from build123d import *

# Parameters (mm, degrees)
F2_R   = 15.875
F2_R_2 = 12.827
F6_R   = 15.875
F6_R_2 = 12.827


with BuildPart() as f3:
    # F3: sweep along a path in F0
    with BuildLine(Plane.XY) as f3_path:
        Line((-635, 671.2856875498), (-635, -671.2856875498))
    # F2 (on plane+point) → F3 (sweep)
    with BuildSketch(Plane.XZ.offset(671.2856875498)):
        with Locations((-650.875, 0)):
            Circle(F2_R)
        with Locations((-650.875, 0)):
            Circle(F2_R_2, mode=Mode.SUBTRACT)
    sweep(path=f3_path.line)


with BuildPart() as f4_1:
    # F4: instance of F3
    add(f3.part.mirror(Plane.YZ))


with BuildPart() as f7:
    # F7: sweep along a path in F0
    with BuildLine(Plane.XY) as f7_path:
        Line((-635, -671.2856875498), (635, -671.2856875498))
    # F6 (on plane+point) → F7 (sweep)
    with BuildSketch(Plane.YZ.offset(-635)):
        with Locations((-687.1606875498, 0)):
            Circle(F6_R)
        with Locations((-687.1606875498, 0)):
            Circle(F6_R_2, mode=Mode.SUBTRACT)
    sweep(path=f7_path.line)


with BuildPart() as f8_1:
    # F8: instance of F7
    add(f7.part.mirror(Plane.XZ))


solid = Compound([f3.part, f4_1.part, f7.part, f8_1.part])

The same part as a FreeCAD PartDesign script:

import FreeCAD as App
import Part
import Sketcher
Q = App.Units.Quantity

doc = App.newDocument("Part")
body = doc.addObject("PartDesign::Body", "Body")

# Sketch on XZ plane
sketch1 = body.newObject("Sketcher::SketchObject", "Sketch")
sketch1.AttachmentSupport = (doc.getObject("XZ_Plane"), [""])
sketch1.MapMode = "FlatFace"
sketch1.AttachmentOffset = App.Placement(App.Vector(0, 0, 671.285688), App.Rotation())
sketch1.addGeometry(Part.Circle(App.Vector(-650.875, 0, 0), App.Vector(0, 0, 1), 15.875), False)
sketch1.addGeometry(Part.Circle(App.Vector(-650.875, 0, 0), App.Vector(0, 0, 1), 12.827), False)
sketch1.addConstraint(Sketcher.Constraint("Coincident", 1, 3, 0, 3))
sketch1.addConstraint(Sketcher.Constraint("PointOnObject", 0, 3, -1))
sketch1.addConstraint(Sketcher.Constraint("Diameter", 0, Q("1.25 in")))
sketch1.addConstraint(Sketcher.Constraint("Diameter", 1, Q("1.01 in")))
sketch1.addConstraint(Sketcher.Constraint("DistanceX", 0, 3, -1, 1, Q("25.625 in")))

# Sketch on XY plane
sketch2 = body.newObject("Sketcher::SketchObject", "Sketch001")
sketch2.AttachmentSupport = (doc.getObject("XY_Plane"), [""])
sketch2.MapMode = "FlatFace"
sketch2.addGeometry(Part.LineSegment(App.Vector(-635, 671.285688, 0), App.Vector(-635, -671.285688, 0)), False)
sketch2.addConstraint(Sketcher.Constraint("Vertical", 0))
sketch2.addConstraint(Sketcher.Constraint("DistanceX", 0, 1, -1, 1, Q("25 in")))
sketch2.addConstraint(Sketcher.Constraint("DistanceY", 0, 2, 0, 1, Q("1342.571375 mm")))
sketch2.addConstraint(Sketcher.Constraint("DistanceY", -1, 1, 0, 1, Q("671.285688 mm")))
doc.recompute()

additivepipe = body.newObject("PartDesign::AdditivePipe", "AdditivePipe")
additivepipe.Profile = sketch1
additivepipe.Spine = (sketch2, ["Edge1"])
body2 = doc.addObject("PartDesign::Body", "Body001")
doc.recompute()

mirroring = doc.addObject("Part::Mirroring", "Mirroring")
mirroring.Source = body
mirroring.Base = App.Vector(0, 0, 0)
mirroring.Normal = App.Vector(1, 0, 0)
body2.BaseFeature = mirroring
doc.recompute()
body3 = doc.addObject("PartDesign::Body", "Body002")

# Sketch on YZ plane
sketch3 = body3.newObject("Sketcher::SketchObject", "Sketch002")
sketch3.AttachmentSupport = (doc.getObject("YZ_Plane002"), [""])
sketch3.MapMode = "FlatFace"
sketch3.AttachmentOffset = App.Placement(App.Vector(0, 0, -25 * 25.4), App.Rotation())
sketch3.addGeometry(Part.Circle(App.Vector(-687.160688, 0, 0), App.Vector(0, 0, 1), 15.875), False)
sketch3.addGeometry(Part.Circle(App.Vector(-687.160688, 0, 0), App.Vector(0, 0, 1), 12.827), False)
sketch3.addConstraint(Sketcher.Constraint("Coincident", 1, 3, 0, 3))
sketch3.addConstraint(Sketcher.Constraint("PointOnObject", 0, 3, -1))
sketch3.addConstraint(Sketcher.Constraint("Diameter", 0, Q("1.25 in")))
sketch3.addConstraint(Sketcher.Constraint("Diameter", 1, Q("1.01 in")))
sketch3.addConstraint(Sketcher.Constraint("DistanceX", 0, 3, -1, 1, Q("687.160688 mm")))

# Sketch on XY plane
sketch4 = body3.newObject("Sketcher::SketchObject", "Sketch003")
sketch4.AttachmentSupport = (doc.getObject("XY_Plane002"), [""])
sketch4.MapMode = "FlatFace"
sketch4.addGeometry(Part.LineSegment(App.Vector(-635, -671.285688, 0), App.Vector(635, -671.285688, 0)), False)
sketch4.addConstraint(Sketcher.Constraint("Horizontal", 0))
sketch4.addConstraint(Sketcher.Constraint("DistanceX", 0, 1, 0, 2, Q("50 in")))
sketch4.addConstraint(Sketcher.Constraint("DistanceX", 0, 1, -1, 1, Q("25 in")))
sketch4.addConstraint(Sketcher.Constraint("DistanceY", 0, 1, -1, 1, Q("671.285688 mm")))
doc.recompute()

additivepipe2 = body3.newObject("PartDesign::AdditivePipe", "AdditivePipe001")
additivepipe2.Profile = sketch3
additivepipe2.Spine = (sketch4, ["Edge1"])
body4 = doc.addObject("PartDesign::Body", "Body003")
doc.recompute()

mirroring2 = doc.addObject("Part::Mirroring", "Mirroring001")
mirroring2.Source = body3
mirroring2.Base = App.Vector(0, 0, 0)
mirroring2.Normal = App.Vector(0, -1, 0)
body4.BaseFeature = mirroring2
doc.recompute()
mirroring.Visibility = False
mirroring2.Visibility = False

doc.recompute()
